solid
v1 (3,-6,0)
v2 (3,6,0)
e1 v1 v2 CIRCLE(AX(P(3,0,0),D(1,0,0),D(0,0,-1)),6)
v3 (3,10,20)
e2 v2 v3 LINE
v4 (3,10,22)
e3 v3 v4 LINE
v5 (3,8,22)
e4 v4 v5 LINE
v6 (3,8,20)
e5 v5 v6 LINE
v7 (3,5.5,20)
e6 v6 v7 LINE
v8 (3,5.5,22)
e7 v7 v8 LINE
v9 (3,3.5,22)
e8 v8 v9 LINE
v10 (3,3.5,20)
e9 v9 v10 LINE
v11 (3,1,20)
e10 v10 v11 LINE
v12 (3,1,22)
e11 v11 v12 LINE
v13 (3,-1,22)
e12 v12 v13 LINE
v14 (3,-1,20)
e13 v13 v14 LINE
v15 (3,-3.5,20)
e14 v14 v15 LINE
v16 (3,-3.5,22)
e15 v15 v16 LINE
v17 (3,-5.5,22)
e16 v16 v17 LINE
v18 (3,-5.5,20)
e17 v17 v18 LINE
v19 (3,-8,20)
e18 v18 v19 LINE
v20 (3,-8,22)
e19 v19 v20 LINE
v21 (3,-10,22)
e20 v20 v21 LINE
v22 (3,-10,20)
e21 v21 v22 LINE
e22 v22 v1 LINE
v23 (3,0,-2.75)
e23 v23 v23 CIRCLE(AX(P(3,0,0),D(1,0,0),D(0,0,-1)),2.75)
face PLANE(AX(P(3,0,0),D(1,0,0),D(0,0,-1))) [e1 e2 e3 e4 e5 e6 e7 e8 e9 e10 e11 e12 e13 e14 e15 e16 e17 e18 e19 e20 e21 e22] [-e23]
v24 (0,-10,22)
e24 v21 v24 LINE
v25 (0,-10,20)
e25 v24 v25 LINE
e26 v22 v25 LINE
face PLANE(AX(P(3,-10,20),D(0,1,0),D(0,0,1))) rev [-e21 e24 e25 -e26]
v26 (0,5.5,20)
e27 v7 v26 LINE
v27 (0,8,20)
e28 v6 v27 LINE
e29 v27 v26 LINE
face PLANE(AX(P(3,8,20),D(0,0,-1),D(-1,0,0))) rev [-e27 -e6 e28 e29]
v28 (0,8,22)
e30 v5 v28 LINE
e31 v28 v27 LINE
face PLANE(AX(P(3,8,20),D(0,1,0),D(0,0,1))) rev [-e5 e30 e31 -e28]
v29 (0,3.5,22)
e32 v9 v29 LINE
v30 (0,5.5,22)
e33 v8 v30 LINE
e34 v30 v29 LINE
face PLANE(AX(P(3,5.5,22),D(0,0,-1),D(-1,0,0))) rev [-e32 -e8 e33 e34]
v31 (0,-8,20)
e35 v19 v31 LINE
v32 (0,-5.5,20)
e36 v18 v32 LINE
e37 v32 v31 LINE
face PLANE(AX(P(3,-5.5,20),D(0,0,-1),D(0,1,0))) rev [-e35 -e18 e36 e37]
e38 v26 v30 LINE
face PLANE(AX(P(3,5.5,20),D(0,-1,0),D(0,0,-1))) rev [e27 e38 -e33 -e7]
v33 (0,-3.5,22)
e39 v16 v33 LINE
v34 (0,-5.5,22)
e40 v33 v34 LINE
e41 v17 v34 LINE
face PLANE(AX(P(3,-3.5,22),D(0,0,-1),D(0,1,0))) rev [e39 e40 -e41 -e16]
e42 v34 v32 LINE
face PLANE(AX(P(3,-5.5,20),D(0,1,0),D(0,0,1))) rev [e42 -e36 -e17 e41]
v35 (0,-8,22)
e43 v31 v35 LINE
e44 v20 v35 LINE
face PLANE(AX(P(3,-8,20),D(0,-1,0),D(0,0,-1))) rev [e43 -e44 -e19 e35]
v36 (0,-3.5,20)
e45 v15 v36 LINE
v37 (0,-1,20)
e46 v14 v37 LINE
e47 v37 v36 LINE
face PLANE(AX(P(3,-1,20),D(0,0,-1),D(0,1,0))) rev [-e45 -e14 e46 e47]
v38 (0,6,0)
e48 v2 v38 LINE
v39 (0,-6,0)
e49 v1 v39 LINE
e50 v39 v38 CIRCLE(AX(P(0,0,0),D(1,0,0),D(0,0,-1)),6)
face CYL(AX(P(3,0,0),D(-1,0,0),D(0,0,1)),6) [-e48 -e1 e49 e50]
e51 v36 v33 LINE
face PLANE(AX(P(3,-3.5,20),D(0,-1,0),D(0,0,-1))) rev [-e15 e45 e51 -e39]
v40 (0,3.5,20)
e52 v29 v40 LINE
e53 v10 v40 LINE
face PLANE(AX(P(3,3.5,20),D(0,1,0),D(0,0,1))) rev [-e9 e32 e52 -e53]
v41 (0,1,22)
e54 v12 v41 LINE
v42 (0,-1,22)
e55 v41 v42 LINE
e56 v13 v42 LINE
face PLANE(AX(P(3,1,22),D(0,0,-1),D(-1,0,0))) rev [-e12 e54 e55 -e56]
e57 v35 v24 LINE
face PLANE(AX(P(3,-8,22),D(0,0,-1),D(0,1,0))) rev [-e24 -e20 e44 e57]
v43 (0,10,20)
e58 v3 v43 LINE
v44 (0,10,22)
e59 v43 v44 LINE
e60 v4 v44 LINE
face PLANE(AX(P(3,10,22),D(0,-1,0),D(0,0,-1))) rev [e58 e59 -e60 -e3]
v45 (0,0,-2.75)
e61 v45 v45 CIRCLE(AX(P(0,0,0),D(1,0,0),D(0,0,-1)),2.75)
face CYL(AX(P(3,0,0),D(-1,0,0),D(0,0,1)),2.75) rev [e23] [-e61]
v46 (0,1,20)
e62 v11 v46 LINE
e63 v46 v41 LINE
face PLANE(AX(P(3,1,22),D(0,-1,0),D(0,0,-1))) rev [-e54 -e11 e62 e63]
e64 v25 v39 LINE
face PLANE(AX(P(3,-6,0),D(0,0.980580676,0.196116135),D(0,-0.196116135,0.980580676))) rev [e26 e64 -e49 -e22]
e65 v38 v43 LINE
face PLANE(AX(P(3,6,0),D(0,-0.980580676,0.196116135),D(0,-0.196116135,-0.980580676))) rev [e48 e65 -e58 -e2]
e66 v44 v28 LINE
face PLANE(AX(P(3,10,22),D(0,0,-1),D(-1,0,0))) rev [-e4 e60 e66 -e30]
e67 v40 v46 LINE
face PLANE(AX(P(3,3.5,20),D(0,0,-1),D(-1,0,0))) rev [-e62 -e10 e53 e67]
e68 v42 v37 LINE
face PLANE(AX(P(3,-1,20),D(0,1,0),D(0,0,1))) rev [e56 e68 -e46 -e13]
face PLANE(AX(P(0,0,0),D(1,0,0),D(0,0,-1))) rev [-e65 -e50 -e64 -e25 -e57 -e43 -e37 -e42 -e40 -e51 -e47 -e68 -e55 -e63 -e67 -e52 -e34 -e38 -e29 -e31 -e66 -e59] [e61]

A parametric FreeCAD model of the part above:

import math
import FreeCAD as App
import Part
import Sketcher
Q = App.Units.Quantity

doc = App.newDocument("Part")
params = doc.addObject("Spreadsheet::Sheet", "Params")
for row, (alias, value) in enumerate([
    ("sketch1_radius", "6 mm"),
    ("sketch1_diameter", "5.5 mm"),
    ("sketch1_width", "2 mm"),
    ("sketch1_width2", "2.5 mm"),
    ("pad1_length", "3 mm"),
], start=1):
    params.set(f"A{row}", alias)
    params.set(f"B{row}", "=" + value)
    params.setAlias(f"B{row}", alias)

body = doc.addObject("PartDesign::Body", "Body")

sketch1 = body.newObject("Sketcher::SketchObject", "Sketch")
sketch1.AttachmentSupport = (doc.getObject("YZ_Plane"), [""])
sketch1.MapMode = "FlatFace"
sketch1.addGeometry([
    Part.LineSegment(App.Vector(5.5, 20, 0), App.Vector(5.5, 22, 0)),
    Part.LineSegment(App.Vector(5.5, 22, 0), App.Vector(3.5, 22, 0)),
    Part.LineSegment(App.Vector(3.5, 22, 0), App.Vector(3.5, 20, 0)),
    Part.LineSegment(App.Vector(3.5, 20, 0), App.Vector(1, 20, 0)),
    Part.LineSegment(App.Vector(1, 20, 0), App.Vector(1, 22, 0)),
    Part.LineSegment(App.Vector(1, 22, 0), App.Vector(-1, 22, 0)),
    Part.LineSegment(App.Vector(-1, 22, 0), App.Vector(-1, 20, 0)),
    Part.LineSegment(App.Vector(-1, 20, 0), App.Vector(-3.5, 20, 0)),
    Part.LineSegment(App.Vector(-3.5, 20, 0), App.Vector(-3.5, 22, 0)),
    Part.LineSegment(App.Vector(-3.5, 22, 0), App.Vector(-5.5, 22, 0)),
    Part.LineSegment(App.Vector(-5.5, 22, 0), App.Vector(-5.5, 20, 0)),
    Part.LineSegment(App.Vector(-5.5, 20, 0), App.Vector(-8, 20, 0)),
    Part.LineSegment(App.Vector(-8, 20, 0), App.Vector(-8, 22, 0)),
    Part.LineSegment(App.Vector(-8, 22, 0), App.Vector(-10, 22, 0)),
    Part.LineSegment(App.Vector(-10, 22, 0), App.Vector(-10, 20, 0)),
    Part.LineSegment(App.Vector(-10, 20, 0), App.Vector(-6, 0, 0)),
    Part.ArcOfCircle(Part.Circle(App.Vector(0, 0, 0), App.Vector(0, 0, 1), 6), math.radians(180), math.radians(360)),
    Part.LineSegment(App.Vector(6, 0, 0), App.Vector(10, 20, 0)),
    Part.LineSegment(App.Vector(10, 20, 0), App.Vector(10, 22, 0)),
    Part.LineSegment(App.Vector(10, 22, 0), App.Vector(8, 22, 0)),
    Part.LineSegment(App.Vector(8, 22, 0), App.Vector(8, 20, 0)),
    Part.LineSegment(App.Vector(8, 20, 0), App.Vector(5.5, 20, 0)),
    Part.Circle(App.Vector(0, 0, 0), App.Vector(0, 0, 1), 2.8),
], False)
sketch1.addConstraint([
    Sketcher.Constraint("Coincident", 0, 2, 1, 1),
    Sketcher.Constraint("Coincident", 1, 2, 2, 1),
    Sketcher.Constraint("Coincident", 2, 2, 3, 1),
    Sketcher.Constraint("Coincident", 3, 2, 4, 1),
    Sketcher.Constraint("Coincident", 4, 2, 5, 1),
    Sketcher.Constraint("Coincident", 5, 2, 6, 1),
    Sketcher.Constraint("Coincident", 6, 2, 7, 1),
    Sketcher.Constraint("Coincident", 7, 2, 8, 1),
    Sketcher.Constraint("Coincident", 8, 2, 9, 1),
    Sketcher.Constraint("Coincident", 9, 2, 10, 1),
    Sketcher.Constraint("Coincident", 10, 2, 11, 1),
    Sketcher.Constraint("Coincident", 11, 2, 12, 1),
    Sketcher.Constraint("Coincident", 12, 2, 13, 1),
    Sketcher.Constraint("Coincident", 13, 2, 14, 1),
    Sketcher.Constraint("Coincident", 14, 2, 15, 1),
    Sketcher.Constraint("Coincident", 15, 2, 16, 1),
    Sketcher.Constraint("Coincident", 16, 2, 17, 1),
    Sketcher.Constraint("Coincident", 17, 2, 18, 1),
    Sketcher.Constraint("Coincident", 18, 2, 19, 1),
    Sketcher.Constraint("Coincident", 19, 2, 20, 1),
    Sketcher.Constraint("Coincident", 20, 2, 21, 1),
    Sketcher.Constraint("Coincident", 21, 2, 0, 1),
    Sketcher.Constraint("Vertical", 0),
    Sketcher.Constraint("Horizontal", 1),
    Sketcher.Constraint("Vertical", 2),
    Sketcher.Constraint("Horizontal", 3),
    Sketcher.Constraint("Vertical", 4),
    Sketcher.Constraint("Horizontal", 5),
    Sketcher.Constraint("Vertical", 6),
    Sketcher.Constraint("Horizontal", 7),
    Sketcher.Constraint("Vertical", 8),
    Sketcher.Constraint("Horizontal", 9),
    Sketcher.Constraint("Vertical", 10),
    Sketcher.Constraint("Horizontal", 11),
    Sketcher.Constraint("Vertical", 12),
    Sketcher.Constraint("Horizontal", 13),
    Sketcher.Constraint("Vertical", 14),
    Sketcher.Constraint("Vertical", 18),
    Sketcher.Constraint("Horizontal", 19),
    Sketcher.Constraint("Vertical", 20),
    Sketcher.Constraint("Horizontal", 21),
    Sketcher.Constraint("Coincident", 16, 3, -1, 1),
    Sketcher.Constraint("Coincident", 22, 3, -1, 1),
    Sketcher.Constraint("Symmetric", 3, 2, 6, 2, -2),
    Sketcher.Constraint("Symmetric", 1, 2, 8, 2, -2),
    Sketcher.Constraint("Symmetric", 14, 2, 17, 2, -2),
    Sketcher.Constraint("Symmetric", 12, 2, 19, 2, -2),
    Sketcher.Constraint("Symmetric", 10, 2, 21, 2, -2),
    Sketcher.Constraint("PointOnObject", 15, 2, -1),
    Sketcher.Constraint("PointOnObject", 16, 2, -1),
    Sketcher.Constraint("Horizontal", 1, 2, 4, 2),
    Sketcher.Constraint("Horizontal", 7, 2, 10, 2),
    Sketcher.Constraint("Horizontal", 9, 2, 12, 2),
    Sketcher.Constraint("Horizontal", 11, 2, 14, 2),
    Sketcher.Constraint("Equal", 1, 5),
    Sketcher.Constraint("Equal", 7, 11),
    Sketcher.Constraint("Equal", 9, 13),
    Sketcher.Constraint("Equal", 19, 0),
    Sketcher.Constraint("Radius", 16, Q("6 mm")),
    Sketcher.Constraint("Diameter", 22, Q("5.5 mm")),
    Sketcher.Constraint("DistanceX", 1, 2, 1, 1, Q("2 mm")),
    Sketcher.Constraint("DistanceX", 3, 2, 3, 1, Q("2.5 mm")),
    Sketcher.Constraint("DistanceY", -1, 1, 0, 2, Q("22 mm")),
])
sketch1.setExpression("Constraints[58]", "Params.sketch1_radius")
sketch1.setExpression("Constraints[59]", "Params.sketch1_diameter")
sketch1.setExpression("Constraints[60]", "Params.sketch1_width")
sketch1.setExpression("Constraints[61]", "Params.sketch1_width2")
pad1 = body.newObject("PartDesign::Pad", "Pad")
pad1.Profile = sketch1
pad1.setExpression("Length", "Params.pad1_length")

doc.recompute()
